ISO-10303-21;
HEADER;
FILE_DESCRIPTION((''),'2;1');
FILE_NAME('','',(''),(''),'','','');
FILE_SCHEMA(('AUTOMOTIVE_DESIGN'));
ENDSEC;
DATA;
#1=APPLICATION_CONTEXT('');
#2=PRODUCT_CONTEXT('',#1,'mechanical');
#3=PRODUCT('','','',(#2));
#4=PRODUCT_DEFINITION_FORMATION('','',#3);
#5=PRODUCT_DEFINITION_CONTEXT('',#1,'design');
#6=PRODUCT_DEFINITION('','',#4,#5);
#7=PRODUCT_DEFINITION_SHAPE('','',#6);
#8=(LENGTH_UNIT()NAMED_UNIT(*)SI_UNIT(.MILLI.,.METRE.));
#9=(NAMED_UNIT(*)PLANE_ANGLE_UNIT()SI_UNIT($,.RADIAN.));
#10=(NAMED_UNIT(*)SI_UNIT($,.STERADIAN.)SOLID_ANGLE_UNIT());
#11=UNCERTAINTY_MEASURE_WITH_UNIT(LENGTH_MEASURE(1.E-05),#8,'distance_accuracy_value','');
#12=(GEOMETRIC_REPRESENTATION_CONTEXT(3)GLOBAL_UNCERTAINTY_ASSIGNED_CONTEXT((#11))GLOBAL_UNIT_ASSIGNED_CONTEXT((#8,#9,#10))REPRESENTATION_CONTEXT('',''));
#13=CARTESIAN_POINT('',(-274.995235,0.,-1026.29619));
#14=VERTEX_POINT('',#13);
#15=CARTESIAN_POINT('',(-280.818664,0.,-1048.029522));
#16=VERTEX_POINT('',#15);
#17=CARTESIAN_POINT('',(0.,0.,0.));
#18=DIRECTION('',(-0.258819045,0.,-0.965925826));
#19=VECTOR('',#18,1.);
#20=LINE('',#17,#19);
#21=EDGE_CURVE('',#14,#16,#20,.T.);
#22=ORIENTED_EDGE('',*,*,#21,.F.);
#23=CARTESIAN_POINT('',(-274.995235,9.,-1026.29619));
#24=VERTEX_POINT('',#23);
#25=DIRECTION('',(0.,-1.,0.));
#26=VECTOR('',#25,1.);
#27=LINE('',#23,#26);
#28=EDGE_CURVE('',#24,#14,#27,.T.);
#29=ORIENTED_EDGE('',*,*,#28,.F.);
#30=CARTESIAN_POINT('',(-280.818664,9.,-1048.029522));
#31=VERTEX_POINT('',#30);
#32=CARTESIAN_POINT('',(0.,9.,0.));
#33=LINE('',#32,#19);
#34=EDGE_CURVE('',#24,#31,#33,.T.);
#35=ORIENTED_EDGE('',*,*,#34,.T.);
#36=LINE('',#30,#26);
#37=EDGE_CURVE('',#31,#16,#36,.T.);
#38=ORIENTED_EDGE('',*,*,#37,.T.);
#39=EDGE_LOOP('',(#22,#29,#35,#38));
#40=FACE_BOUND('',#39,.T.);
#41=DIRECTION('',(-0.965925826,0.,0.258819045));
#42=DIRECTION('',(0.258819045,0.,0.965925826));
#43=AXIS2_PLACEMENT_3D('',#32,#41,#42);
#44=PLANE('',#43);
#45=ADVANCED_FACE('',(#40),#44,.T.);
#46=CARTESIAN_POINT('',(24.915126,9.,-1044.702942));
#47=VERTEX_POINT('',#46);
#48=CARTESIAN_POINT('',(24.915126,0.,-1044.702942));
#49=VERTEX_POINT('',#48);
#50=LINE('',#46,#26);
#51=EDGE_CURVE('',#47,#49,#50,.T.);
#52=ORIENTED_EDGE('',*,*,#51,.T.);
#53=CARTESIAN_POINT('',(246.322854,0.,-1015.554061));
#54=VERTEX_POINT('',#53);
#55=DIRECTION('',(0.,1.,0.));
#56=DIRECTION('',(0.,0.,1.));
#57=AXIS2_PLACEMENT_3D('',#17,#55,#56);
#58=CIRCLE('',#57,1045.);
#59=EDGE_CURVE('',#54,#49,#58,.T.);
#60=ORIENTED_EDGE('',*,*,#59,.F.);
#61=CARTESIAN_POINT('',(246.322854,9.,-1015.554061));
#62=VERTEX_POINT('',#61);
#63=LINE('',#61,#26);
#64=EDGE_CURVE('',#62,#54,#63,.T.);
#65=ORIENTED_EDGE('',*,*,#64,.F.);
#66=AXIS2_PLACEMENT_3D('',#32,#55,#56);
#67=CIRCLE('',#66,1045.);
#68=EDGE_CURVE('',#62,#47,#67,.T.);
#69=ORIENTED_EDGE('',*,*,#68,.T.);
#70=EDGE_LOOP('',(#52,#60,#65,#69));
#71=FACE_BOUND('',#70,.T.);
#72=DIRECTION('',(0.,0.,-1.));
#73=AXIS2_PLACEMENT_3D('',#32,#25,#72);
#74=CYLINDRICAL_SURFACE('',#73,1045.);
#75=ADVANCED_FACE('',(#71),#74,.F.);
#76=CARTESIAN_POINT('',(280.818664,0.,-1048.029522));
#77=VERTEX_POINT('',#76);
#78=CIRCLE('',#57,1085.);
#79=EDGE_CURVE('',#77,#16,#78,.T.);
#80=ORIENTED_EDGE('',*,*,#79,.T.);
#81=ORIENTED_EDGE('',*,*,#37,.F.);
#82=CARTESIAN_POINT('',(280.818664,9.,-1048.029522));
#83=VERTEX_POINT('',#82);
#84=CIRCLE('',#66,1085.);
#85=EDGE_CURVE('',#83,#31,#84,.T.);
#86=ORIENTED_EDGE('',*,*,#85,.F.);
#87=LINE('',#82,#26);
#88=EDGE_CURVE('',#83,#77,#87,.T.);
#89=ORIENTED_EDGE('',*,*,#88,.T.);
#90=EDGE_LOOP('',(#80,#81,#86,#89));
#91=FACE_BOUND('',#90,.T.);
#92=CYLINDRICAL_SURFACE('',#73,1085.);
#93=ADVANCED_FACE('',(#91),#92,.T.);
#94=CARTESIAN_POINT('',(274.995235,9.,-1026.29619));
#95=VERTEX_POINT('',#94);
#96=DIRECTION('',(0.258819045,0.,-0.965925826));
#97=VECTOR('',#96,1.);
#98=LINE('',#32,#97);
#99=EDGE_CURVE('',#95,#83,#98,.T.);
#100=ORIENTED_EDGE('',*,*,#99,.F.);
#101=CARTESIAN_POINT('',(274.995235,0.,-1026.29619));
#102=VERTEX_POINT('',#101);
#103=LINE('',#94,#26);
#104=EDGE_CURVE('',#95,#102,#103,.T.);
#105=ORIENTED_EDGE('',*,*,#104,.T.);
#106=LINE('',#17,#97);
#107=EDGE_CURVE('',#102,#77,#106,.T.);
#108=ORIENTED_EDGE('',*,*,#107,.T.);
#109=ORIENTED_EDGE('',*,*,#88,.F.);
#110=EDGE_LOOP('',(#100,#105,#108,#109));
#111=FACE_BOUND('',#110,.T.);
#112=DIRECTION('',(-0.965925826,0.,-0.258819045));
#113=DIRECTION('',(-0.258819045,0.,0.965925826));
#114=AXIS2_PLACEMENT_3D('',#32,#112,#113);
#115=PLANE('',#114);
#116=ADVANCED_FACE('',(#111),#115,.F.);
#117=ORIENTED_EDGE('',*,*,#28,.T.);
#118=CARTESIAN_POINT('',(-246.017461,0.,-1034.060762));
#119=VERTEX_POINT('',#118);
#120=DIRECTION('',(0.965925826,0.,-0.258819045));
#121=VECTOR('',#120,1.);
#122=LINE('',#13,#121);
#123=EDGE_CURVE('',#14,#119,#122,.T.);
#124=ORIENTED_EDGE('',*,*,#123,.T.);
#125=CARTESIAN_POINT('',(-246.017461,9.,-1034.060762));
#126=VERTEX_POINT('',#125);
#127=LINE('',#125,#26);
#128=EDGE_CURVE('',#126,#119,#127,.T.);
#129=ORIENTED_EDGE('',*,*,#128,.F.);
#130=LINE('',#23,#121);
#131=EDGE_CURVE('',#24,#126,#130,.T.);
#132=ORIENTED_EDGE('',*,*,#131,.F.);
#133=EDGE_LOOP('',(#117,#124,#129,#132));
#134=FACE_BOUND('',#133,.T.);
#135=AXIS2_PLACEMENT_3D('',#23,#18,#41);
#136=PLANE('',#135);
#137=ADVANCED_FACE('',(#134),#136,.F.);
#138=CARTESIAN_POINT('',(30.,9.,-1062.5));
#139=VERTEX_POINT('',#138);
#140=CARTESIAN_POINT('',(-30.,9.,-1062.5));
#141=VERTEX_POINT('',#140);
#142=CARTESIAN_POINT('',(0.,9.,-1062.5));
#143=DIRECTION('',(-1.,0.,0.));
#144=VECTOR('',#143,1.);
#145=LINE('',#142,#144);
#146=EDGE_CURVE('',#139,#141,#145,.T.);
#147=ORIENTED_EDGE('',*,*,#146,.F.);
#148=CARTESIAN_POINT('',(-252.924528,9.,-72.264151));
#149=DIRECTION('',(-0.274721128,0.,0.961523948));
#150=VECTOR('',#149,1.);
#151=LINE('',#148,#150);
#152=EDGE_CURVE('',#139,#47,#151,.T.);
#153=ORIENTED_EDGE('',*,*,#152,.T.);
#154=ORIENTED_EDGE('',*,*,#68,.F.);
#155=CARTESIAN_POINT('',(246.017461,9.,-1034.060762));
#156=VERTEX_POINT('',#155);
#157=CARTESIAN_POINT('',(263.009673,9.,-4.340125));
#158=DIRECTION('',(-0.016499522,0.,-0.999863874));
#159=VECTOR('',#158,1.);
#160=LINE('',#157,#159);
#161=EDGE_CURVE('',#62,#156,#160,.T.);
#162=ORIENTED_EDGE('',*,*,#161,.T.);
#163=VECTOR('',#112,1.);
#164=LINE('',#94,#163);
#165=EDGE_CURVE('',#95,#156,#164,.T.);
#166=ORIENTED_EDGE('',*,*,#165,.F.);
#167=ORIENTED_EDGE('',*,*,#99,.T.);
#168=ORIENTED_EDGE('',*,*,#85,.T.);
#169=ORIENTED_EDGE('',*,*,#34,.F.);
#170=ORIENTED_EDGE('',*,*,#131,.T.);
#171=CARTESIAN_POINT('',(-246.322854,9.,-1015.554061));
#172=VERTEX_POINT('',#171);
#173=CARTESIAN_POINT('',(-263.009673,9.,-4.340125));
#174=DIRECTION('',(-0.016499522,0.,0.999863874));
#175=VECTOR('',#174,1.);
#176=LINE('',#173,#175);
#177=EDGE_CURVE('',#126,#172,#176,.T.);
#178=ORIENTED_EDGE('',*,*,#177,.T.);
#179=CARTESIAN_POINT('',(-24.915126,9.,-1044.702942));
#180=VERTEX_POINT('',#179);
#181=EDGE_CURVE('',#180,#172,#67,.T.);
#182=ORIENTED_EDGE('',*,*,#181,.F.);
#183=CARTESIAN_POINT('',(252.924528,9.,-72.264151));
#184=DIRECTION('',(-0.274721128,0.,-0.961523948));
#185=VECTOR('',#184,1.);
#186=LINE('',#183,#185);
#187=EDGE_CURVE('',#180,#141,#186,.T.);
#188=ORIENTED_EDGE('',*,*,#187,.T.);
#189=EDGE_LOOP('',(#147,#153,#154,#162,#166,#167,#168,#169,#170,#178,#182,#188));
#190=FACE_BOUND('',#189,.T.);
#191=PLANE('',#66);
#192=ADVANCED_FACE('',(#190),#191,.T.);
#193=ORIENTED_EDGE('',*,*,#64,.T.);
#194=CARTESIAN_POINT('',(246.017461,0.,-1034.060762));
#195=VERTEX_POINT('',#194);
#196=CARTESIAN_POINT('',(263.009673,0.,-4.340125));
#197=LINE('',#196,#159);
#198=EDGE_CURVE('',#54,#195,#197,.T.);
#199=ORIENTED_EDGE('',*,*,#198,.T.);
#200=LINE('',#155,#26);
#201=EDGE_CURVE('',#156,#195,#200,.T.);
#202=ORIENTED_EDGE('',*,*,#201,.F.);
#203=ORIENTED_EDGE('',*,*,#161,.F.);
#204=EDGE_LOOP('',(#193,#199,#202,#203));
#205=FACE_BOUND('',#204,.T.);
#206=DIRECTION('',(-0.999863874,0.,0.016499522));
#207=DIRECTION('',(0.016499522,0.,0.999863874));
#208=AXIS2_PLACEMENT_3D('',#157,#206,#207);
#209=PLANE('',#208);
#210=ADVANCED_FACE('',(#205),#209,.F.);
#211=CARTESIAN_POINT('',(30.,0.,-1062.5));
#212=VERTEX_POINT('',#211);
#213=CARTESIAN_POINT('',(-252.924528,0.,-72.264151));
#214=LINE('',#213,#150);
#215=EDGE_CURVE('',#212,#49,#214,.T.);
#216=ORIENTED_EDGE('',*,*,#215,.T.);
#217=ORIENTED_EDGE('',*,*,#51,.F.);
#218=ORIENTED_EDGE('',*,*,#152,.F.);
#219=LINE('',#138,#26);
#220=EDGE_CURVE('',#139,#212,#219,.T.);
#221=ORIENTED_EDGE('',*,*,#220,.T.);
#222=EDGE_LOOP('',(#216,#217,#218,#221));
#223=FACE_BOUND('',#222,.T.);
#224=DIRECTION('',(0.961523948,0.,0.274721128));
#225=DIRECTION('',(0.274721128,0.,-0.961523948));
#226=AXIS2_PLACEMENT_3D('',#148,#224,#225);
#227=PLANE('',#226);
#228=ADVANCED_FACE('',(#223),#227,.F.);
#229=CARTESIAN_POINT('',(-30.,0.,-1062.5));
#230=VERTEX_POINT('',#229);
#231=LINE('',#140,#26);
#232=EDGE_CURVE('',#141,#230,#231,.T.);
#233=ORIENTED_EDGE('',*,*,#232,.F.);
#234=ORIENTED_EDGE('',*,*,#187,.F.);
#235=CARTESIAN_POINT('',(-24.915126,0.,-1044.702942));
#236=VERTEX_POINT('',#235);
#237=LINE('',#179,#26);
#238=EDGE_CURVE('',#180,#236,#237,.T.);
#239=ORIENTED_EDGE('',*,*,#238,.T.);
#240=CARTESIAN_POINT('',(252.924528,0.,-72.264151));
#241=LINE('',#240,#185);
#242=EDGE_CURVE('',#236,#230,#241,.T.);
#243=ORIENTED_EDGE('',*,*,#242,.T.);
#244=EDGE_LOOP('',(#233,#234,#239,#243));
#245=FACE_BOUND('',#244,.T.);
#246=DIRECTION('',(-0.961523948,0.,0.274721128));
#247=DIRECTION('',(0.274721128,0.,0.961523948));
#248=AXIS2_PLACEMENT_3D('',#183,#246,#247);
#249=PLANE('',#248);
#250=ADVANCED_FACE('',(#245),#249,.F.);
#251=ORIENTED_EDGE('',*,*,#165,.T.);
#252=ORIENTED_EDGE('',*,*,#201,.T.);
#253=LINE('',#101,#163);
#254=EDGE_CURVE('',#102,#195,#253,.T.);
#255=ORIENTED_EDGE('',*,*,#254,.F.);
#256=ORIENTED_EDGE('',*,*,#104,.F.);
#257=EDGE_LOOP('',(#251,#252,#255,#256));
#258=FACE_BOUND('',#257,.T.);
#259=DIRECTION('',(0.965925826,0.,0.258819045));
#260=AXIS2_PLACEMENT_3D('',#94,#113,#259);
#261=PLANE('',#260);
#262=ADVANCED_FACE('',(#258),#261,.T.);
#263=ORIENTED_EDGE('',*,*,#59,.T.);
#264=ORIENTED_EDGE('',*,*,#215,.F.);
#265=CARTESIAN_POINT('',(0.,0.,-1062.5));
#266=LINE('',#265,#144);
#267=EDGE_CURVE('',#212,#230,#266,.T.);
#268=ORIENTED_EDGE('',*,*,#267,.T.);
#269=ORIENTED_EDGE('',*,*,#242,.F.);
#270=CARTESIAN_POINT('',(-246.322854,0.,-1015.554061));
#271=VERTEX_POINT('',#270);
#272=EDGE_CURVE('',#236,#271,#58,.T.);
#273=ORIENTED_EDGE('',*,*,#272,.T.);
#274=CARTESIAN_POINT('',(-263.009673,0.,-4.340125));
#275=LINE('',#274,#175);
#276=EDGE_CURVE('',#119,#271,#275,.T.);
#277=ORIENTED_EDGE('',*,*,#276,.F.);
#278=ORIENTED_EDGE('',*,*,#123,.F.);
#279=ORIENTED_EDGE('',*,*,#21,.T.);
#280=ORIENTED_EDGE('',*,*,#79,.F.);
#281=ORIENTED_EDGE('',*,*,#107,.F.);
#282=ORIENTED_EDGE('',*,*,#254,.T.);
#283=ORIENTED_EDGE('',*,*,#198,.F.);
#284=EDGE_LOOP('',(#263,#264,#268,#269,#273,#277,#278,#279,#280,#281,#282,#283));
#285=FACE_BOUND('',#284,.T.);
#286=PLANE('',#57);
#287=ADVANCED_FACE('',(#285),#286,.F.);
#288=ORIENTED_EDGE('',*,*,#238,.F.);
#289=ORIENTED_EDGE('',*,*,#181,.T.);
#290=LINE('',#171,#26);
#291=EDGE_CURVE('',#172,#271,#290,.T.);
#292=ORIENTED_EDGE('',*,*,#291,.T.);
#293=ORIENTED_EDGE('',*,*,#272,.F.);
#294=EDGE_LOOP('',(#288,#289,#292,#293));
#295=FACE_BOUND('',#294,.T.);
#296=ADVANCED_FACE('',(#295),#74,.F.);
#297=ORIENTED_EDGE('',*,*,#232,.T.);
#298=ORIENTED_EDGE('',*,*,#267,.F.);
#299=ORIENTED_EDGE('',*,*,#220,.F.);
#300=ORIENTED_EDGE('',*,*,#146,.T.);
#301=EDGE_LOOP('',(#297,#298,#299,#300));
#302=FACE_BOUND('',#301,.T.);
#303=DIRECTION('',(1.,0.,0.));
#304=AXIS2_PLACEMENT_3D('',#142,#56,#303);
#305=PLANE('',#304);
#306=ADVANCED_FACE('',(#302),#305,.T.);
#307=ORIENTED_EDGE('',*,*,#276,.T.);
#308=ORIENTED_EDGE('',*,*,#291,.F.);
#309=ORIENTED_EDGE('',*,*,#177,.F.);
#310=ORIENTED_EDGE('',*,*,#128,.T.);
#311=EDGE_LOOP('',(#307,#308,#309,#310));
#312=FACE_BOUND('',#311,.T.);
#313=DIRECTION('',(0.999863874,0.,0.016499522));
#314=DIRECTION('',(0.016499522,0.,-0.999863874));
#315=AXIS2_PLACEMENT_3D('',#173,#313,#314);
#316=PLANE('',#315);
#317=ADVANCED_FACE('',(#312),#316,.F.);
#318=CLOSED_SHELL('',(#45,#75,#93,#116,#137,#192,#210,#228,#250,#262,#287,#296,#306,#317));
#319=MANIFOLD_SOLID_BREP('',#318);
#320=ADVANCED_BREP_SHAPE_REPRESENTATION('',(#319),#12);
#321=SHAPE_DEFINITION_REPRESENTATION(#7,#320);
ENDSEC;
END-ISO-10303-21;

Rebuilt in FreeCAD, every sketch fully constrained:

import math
import FreeCAD as App
import Part
import Sketcher
from FreeCAD import Vector
Q = App.Units.Quantity

doc = App.newDocument("Part")
body = doc.addObject("PartDesign::Body", "Body")

# Sketch on XZ plane
sketch1 = body.newObject("Sketcher::SketchObject", "Sketch")
sketch1.AttachmentSupport = (doc.getObject("XZ_Plane"), [""])
sketch1.MapMode = "FlatFace"
sketch1.addGeometry([
    Part.LineSegment(Vector(-280.82, -1048.03, 0), Vector(-275, -1026.3, 0)),  # 0
    Part.LineSegment(Vector(-275, -1026.3, 0), Vector(-246.02, -1034.06, 0)),  # 1
    Part.LineSegment(Vector(-246.02, -1034.06, 0), Vector(-246.32, -1015.86, 0)),  # 2
    Part.LineSegment(Vector(-246.32, -1015.86, 0), Vector(-246.32, -1015.55, 0)),  # 3
    Part.ArcOfCircle(Part.Circle(Vector(0, 0, 0), Vector(0, 0, 1), 1045), math.radians(-103.63), math.radians(-91.37)),  # 4
    Part.LineSegment(Vector(-24.92, -1044.7, 0), Vector(-25, -1045, 0)),  # 5
    Part.LineSegment(Vector(-25, -1045, 0), Vector(-30, -1062.5, 0)),  # 6
    Part.LineSegment(Vector(-30, -1062.5, 0), Vector(30, -1062.5, 0)),  # 7
    Part.LineSegment(Vector(30, -1062.5, 0), Vector(25, -1045, 0)),  # 8
    Part.LineSegment(Vector(25, -1045, 0), Vector(24.92, -1044.7, 0)),  # 9
    Part.ArcOfCircle(Part.Circle(Vector(0, 0, 0), Vector(0, 0, 1), 1045), math.radians(-88.63), math.radians(-76.37)),  # 10
    Part.LineSegment(Vector(246.32, -1015.55, 0), Vector(246.32, -1015.86, 0)),  # 11
    Part.LineSegment(Vector(246.32, -1015.86, 0), Vector(246.02, -1034.06, 0)),  # 12
    Part.LineSegment(Vector(246.02, -1034.06, 0), Vector(275, -1026.3, 0)),  # 13
    Part.LineSegment(Vector(275, -1026.3, 0), Vector(280.82, -1048.03, 0)),  # 14
    Part.ArcOfCircle(Part.Circle(Vector(0, 0, 0), Vector(0, 0, 1), 1085), math.radians(-105), math.radians(-75)),  # 15
], False)
sketch1.addConstraint([
    Sketcher.Constraint("Coincident", 0, 2, 1, 1),
    Sketcher.Constraint("Coincident", 1, 2, 2, 1),
    Sketcher.Constraint("Coincident", 2, 2, 3, 1),
    Sketcher.Constraint("Coincident", 3, 2, 4, 1),
    Sketcher.Constraint("Coincident", 4, 2, 5, 1),
    Sketcher.Constraint("Coincident", 5, 2, 6, 1),
    Sketcher.Constraint("Coincident", 6, 2, 7, 1),
    Sketcher.Constraint("Coincident", 7, 2, 8, 1),
    Sketcher.Constraint("Coincident", 8, 2, 9, 1),
    Sketcher.Constraint("Coincident", 9, 2, 10, 1),
    Sketcher.Constraint("Coincident", 10, 2, 11, 1),
    Sketcher.Constraint("Coincident", 11, 2, 12, 1),
    Sketcher.Constraint("Coincident", 12, 2, 13, 1),
    Sketcher.Constraint("Coincident", 13, 2, 14, 1),
    Sketcher.Constraint("Coincident", 14, 2, 15, 2),
    Sketcher.Constraint("Coincident", 15, 1, 0, 1),
    Sketcher.Constraint("Horizontal", 7),
    Sketcher.Constraint("Coincident", 4, 3, -1, 1),
    Sketcher.Constraint("Coincident", 10, 3, -1, 1),
    Sketcher.Constraint("Coincident", 15, 3, -1, 1),
    Sketcher.Constraint("Equal", 4, 10),
    Sketcher.Constraint("Symmetric", 5, 2, 8, 2, -2),
    Sketcher.Constraint("Symmetric", 2, 2, 11, 2, -2),
    Sketcher.Constraint("Symmetric", 1, 2, 12, 2, -2),
    Sketcher.Constraint("Symmetric", 0, 2, 13, 2, -2),
    Sketcher.Constraint("Perpendicular", 0, 1),
    Sketcher.Constraint("Parallel", 2, 3),
    Sketcher.Constraint("Parallel", 5, 6),
    Sketcher.Constraint("Parallel", 8, 9),
    Sketcher.Constraint("Parallel", 11, 12),
    Sketcher.Constraint("Perpendicular", 13, 14),
    Sketcher.Constraint("Equal", 3, 5),
    Sketcher.Constraint("Equal", 2, 6),
    Sketcher.Constraint("Equal", 6, 8),
    Sketcher.Constraint("Radius", 4, Q("1045 mm")),
    Sketcher.Constraint("Radius", 15, Q("1085 mm")),
    Sketcher.Constraint("DistanceX", 7, 1, 7, 2, Q("60 mm")),
    Sketcher.Constraint("Angle", 0, Q("75 deg")),
    Sketcher.Constraint("Distance", 1, Q("30 mm")),
    Sketcher.Constraint("DistanceX", 5, 2, -1, 1, Q("25 mm")),
    Sketcher.Constraint("DistanceY", 5, 2, -1, 1, Q("1045 mm")),
    Sketcher.Constraint("Distance", 0, Q("22.5 mm")),
    Sketcher.Constraint("DistanceY", 6, 2, -1, 1, Q("1062.5 mm")),
    Sketcher.Constraint("DistanceY", 0, 2, -1, 1, Q("1026.29619 mm")),
])
pad1 = body.newObject("PartDesign::Pad", "Pad")
pad1.Profile = sketch1
pad1.Length = 9
pad1.Reversed = True

doc.recompute()
